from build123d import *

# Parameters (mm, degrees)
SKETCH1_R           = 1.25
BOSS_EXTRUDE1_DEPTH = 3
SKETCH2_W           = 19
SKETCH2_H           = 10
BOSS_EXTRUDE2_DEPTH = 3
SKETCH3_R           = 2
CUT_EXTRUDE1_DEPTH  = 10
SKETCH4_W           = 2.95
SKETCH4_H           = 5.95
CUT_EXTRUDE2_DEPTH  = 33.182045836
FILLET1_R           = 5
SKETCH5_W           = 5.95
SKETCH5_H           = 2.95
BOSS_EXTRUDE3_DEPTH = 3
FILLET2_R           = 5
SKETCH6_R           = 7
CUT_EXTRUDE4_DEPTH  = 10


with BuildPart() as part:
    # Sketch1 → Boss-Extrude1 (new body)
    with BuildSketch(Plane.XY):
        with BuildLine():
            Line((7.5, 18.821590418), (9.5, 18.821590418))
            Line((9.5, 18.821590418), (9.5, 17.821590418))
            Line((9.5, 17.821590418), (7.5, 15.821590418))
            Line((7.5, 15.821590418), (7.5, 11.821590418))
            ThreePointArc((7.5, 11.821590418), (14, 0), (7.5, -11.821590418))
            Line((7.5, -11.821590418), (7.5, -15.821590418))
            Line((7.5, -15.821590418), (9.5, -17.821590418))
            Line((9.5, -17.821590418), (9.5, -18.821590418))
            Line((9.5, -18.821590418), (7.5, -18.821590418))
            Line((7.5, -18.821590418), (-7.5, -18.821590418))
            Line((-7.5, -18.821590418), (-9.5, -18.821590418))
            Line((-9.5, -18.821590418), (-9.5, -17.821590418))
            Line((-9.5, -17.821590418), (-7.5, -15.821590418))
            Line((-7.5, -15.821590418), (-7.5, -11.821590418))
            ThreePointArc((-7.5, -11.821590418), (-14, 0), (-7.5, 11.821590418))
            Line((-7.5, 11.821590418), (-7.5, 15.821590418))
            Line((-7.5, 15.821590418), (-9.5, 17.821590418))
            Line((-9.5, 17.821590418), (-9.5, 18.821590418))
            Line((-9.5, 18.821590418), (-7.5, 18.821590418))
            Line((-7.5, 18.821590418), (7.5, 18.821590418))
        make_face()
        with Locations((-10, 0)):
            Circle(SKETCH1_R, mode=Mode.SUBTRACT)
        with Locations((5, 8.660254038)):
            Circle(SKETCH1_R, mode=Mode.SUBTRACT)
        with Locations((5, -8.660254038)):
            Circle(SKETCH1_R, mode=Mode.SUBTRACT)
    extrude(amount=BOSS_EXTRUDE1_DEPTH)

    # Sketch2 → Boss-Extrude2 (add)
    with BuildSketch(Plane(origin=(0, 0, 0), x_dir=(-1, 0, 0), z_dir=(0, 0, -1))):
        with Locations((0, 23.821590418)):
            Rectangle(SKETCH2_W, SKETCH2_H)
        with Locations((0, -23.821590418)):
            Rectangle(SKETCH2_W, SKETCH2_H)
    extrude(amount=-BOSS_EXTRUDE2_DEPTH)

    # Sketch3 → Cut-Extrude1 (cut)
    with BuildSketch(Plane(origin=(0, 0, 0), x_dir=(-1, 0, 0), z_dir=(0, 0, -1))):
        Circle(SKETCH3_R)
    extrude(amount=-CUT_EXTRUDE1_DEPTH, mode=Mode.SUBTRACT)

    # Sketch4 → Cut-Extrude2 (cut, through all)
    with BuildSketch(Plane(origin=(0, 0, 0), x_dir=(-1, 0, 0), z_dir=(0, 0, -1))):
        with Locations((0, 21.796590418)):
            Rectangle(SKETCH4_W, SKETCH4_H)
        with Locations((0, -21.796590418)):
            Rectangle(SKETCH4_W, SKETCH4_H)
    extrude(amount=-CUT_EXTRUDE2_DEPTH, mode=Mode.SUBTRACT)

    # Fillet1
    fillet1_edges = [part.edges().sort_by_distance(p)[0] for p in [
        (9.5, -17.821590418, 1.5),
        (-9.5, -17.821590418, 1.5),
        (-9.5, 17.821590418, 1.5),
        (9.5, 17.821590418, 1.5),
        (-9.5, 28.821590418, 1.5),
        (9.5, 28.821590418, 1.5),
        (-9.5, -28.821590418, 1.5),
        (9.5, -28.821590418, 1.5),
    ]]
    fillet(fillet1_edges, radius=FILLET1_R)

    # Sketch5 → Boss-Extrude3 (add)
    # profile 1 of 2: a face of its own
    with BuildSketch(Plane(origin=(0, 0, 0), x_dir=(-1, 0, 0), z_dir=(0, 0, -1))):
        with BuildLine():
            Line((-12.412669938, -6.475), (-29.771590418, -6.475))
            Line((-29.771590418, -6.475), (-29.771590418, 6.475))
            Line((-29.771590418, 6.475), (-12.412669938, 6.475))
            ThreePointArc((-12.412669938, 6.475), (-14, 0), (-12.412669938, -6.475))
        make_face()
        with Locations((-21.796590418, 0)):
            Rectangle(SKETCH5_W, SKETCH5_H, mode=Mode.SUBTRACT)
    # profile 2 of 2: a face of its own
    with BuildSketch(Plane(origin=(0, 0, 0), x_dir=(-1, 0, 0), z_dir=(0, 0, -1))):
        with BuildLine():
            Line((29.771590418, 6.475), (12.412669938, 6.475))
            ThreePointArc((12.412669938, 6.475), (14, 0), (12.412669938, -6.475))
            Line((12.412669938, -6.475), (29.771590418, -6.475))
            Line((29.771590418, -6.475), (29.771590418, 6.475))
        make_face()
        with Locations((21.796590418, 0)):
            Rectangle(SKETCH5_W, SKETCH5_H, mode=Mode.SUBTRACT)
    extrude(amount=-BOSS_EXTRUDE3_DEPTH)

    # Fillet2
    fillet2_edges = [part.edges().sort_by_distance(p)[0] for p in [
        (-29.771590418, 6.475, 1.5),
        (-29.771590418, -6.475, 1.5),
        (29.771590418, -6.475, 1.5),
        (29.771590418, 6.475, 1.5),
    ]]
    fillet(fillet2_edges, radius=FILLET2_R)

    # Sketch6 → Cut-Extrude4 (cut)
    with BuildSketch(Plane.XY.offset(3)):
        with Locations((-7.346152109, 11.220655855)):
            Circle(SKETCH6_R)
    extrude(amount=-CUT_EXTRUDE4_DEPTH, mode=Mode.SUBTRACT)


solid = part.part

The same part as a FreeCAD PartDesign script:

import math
import FreeCAD as App
import Part
import Sketcher
from FreeCAD import Vector
Q = App.Units.Quantity


def edges_at(feature, points):
    """Names of the edges that pass closest to the given points."""
    edges = feature.Shape.Edges
    near = lambda p: min(range(len(edges)), key=lambda i: edges[i].distToShape(Part.Vertex(*p))[0])
    return sorted({f"Edge{near(p) + 1}" for p in points})

doc = App.newDocument("Part")
body = doc.addObject("PartDesign::Body", "Body")

sketch1 = body.newObject("Sketcher::SketchObject", "Sketch")
sketch1.AttachmentSupport = (doc.getObject("XY_Plane"), [""])
sketch1.MapMode = "FlatFace"
sketch1.addGeometry([
    Part.LineSegment(Vector(9.5, 17.82159, 0), Vector(9.5, 18.82159, 0)),
    Part.LineSegment(Vector(9.5, 18.82159, 0), Vector(-9.5, 18.82159, 0)),
    Part.LineSegment(Vector(-9.5, 18.82159, 0), Vector(-9.5, 17.82159, 0)),
    Part.LineSegment(Vector(-9.5, 17.82159, 0), Vector(-7.5, 15.82159, 0)),
    Part.LineSegment(Vector(-7.5, 15.82159, 0), Vector(-7.5, 11.82159, 0)),
    Part.ArcOfCircle(Part.Circle(Vector(0, 0, 0), Vector(0, 0, 1), 14), math.radians(122.392365), math.radians(237.607635)),
    Part.LineSegment(Vector(-7.5, -11.82159, 0), Vector(-7.5, -15.82159, 0)),
    Part.LineSegment(Vector(-7.5, -15.82159, 0), Vector(-9.5, -17.82159, 0)),
    Part.LineSegment(Vector(-9.5, -17.82159, 0), Vector(-9.5, -18.82159, 0)),
    Part.LineSegment(Vector(-9.5, -18.82159, 0), Vector(9.5, -18.82159, 0)),
    Part.LineSegment(Vector(9.5, -18.82159, 0), Vector(9.5, -17.82159, 0)),
    Part.LineSegment(Vector(9.5, -17.82159, 0), Vector(7.5, -15.82159, 0)),
    Part.LineSegment(Vector(7.5, -15.82159, 0), Vector(7.5, -11.82159, 0)),
    Part.ArcOfCircle(Part.Circle(Vector(0, 0, 0), Vector(0, 0, 1), 14), math.radians(-57.607635), math.radians(57.607635)),
    Part.LineSegment(Vector(7.5, 11.82159, 0), Vector(7.5, 15.82159, 0)),
    Part.LineSegment(Vector(7.5, 15.82159, 0), Vector(9.5, 17.82159, 0)),
    Part.Circle(Vector(5, -8.660254, 0), Vector(0, 0, 1), 1.25),
    Part.Circle(Vector(5, 8.660254, 0), Vector(0, 0, 1), 1.25),
    Part.Circle(Vector(-10, 0, 0), Vector(0, 0, 1), 1.25),
], False)
sketch1.addConstraint([
    Sketcher.Constraint("Coincident", 0, 2, 1, 1),
    Sketcher.Constraint("Coincident", 1, 2, 2, 1),
    Sketcher.Constraint("Coincident", 2, 2, 3, 1),
    Sketcher.Constraint("Coincident", 3, 2, 4, 1),
    Sketcher.Constraint("Coincident", 4, 2, 5, 1),
    Sketcher.Constraint("Coincident", 5, 2, 6, 1),
    Sketcher.Constraint("Coincident", 6, 2, 7, 1),
    Sketcher.Constraint("Coincident", 7, 2, 8, 1),
    Sketcher.Constraint("Coincident", 8, 2, 9, 1),
    Sketcher.Constraint("Coincident", 9, 2, 10, 1),
    Sketcher.Constraint("Coincident", 10, 2, 11, 1),
    Sketcher.Constraint("Coincident", 11, 2, 12, 1),
    Sketcher.Constraint("Coincident", 12, 2, 13, 1),
    Sketcher.Constraint("Coincident", 13, 2, 14, 1),
    Sketcher.Constraint("Coincident", 14, 2, 15, 1),
    Sketcher.Constraint("Coincident", 15, 2, 0, 1),
    Sketcher.Constraint("Vertical", 0),
    Sketcher.Constraint("Horizontal", 1),
    Sketcher.Constraint("Vertical", 2),
    Sketcher.Constraint("Vertical", 4),
    Sketcher.Constraint("Vertical", 6),
    Sketcher.Constraint("Vertical", 8),
    Sketcher.Constraint("Horizontal", 9),
    Sketcher.Constraint("Vertical", 10),
    Sketcher.Constraint("Vertical", 12),
    Sketcher.Constraint("Vertical", 14),
    Sketcher.Constraint("Coincident", 5, 3, -1, 1),
    Sketcher.Constraint("Coincident", 13, 3, -1, 1),
    Sketcher.Constraint("Equal", 5, 13),
    Sketcher.Constraint("Equal", 16, 17),
    Sketcher.Constraint("Equal", 17, 18),
    Sketcher.Constraint("Symmetric", 0, 2, 8, 2, -1, 1),
    Sketcher.Constraint("Symmetric", 2, 2, 10, 2, -1, 1),
    Sketcher.Constraint("Symmetric", 3, 2, 11, 2, -1, 1),
    Sketcher.Constraint("Symmetric", 6, 2, 14, 2, -1, 1),
    Sketcher.Constraint("Symmetric", 7, 2, 10, 2, -2),
    Sketcher.Constraint("Symmetric", 6, 2, 11, 2, -2),
    Sketcher.Constraint("Symmetric", 16, 3, 17, 3, -1),
    Sketcher.Constraint("PointOnObject", 18, 3, -1),
    Sketcher.Constraint("Perpendicular", 3, 7),
    Sketcher.Constraint("Perpendicular", 11, 15),
    Sketcher.Constraint("Radius", 5, Q("14 mm")),
    Sketcher.Constraint("Diameter", 16, Q("2.5 mm")),
    Sketcher.Constraint("DistanceX", 1, 2, 1, 1, Q("19 mm")),
    Sketcher.Constraint("DistanceY", 0, 1, 0, 2, Q("1 mm")),
    Sketcher.Constraint("DistanceY", 4, 2, 4, 1, Q("4 mm")),
    Sketcher.Constraint("DistanceX", -1, 1, 16, 3, Q("5 mm")),
    Sketcher.Constraint("DistanceX", 18, 3, -1, 1, Q("10 mm")),
    Sketcher.Constraint("DistanceX", 2, 2, 3, 2, Q("2 mm")),
    Sketcher.Constraint("DistanceY", 16, 3, 17, 3, Q("17.320508 mm")),
])
pad1 = body.newObject("PartDesign::Pad", "Pad")
pad1.Profile = sketch1
pad1.Length = 3

sketch2 = body.newObject("Sketcher::SketchObject", "Sketch001")
sketch2.AttachmentSupport = (doc.getObject("XY_Plane"), [""])
sketch2.MapMode = "FlatFace"
sketch2.addGeometry([
    Part.LineSegment(Vector(9.5, 28.82159, 0), Vector(9.5, 18.82159, 0)),
    Part.LineSegment(Vector(9.5, 18.82159, 0), Vector(-9.5, 18.82159, 0)),
    Part.LineSegment(Vector(-9.5, 18.82159, 0), Vector(-9.5, 28.82159, 0)),
    Part.LineSegment(Vector(-9.5, 28.82159, 0), Vector(9.5, 28.82159, 0)),
    Part.LineSegment(Vector(9.5, -18.82159, 0), Vector(9.5, -28.82159, 0)),
    Part.LineSegment(Vector(9.5, -28.82159, 0), Vector(-9.5, -28.82159, 0)),
    Part.LineSegment(Vector(-9.5, -28.82159, 0), Vector(-9.5, -18.82159, 0)),
    Part.LineSegment(Vector(-9.5, -18.82159, 0), Vector(9.5, -18.82159, 0)),
], False)
sketch2.addConstraint([
    Sketcher.Constraint("Coincident", 0, 2, 1, 1),
    Sketcher.Constraint("Coincident", 1, 2, 2, 1),
    Sketcher.Constraint("Coincident", 2, 2, 3, 1),
    Sketcher.Constraint("Coincident", 3, 2, 0, 1),
    Sketcher.Constraint("Coincident", 4, 2, 5, 1),
    Sketcher.Constraint("Coincident", 5, 2, 6, 1),
    Sketcher.Constraint("Coincident", 6, 2, 7, 1),
    Sketcher.Constraint("Coincident", 7, 2, 4, 1),
    Sketcher.Constraint("Vertical", 0),
    Sketcher.Constraint("Horizontal", 1),
    Sketcher.Constraint("Vertical", 2),
    Sketcher.Constraint("Horizontal", 3),
    Sketcher.Constraint("Vertical", 4),
    Sketcher.Constraint("Horizontal", 5),
    Sketcher.Constraint("Vertical", 6),
    Sketcher.Constraint("Horizontal", 7),
    Sketcher.Constraint("Symmetric", 2, 2, 4, 2, -1, 1),
    Sketcher.Constraint("Symmetric", 0, 2, 6, 2, -1, 1),
    Sketcher.Constraint("Vertical", 3, 2, 4, 2),
    Sketcher.Constraint("DistanceX", 1, 2, 1, 1, Q("19 mm")),
    Sketcher.Constraint("DistanceY", 0, 2, 0, 1, Q("10 mm")),
    Sketcher.Constraint("DistanceY", -1, 1, 0, 2, Q("18.82159 mm")),
])
pad2 = body.newObject("PartDesign::Pad", "Pad001")
pad2.Profile = sketch2
pad2.Length = 3

sketch3 = body.newObject("Sketcher::SketchObject", "Sketch002")
sketch3.AttachmentSupport = (doc.getObject("XY_Plane"), [""])
sketch3.MapMode = "FlatFace"
sketch3.addGeometry(Part.Circle(Vector(0, 0, 0), Vector(0, 0, 1), 2), False)
sketch3.addConstraint([
    Sketcher.Constraint("Coincident", 0, 3, -1, 1),
    Sketcher.Constraint("Diameter", 0, Q("4 mm")),
])
pocket1 = body.newObject("PartDesign::Pocket", "Pocket")
pocket1.Profile = sketch3
pocket1.Length = 10
pocket1.Reversed = True

sketch4 = body.newObject("Sketcher::SketchObject", "Sketch003")
sketch4.AttachmentSupport = (doc.getObject("XY_Plane"), [""])
sketch4.MapMode = "FlatFace"
sketch4.addGeometry([
    Part.LineSegment(Vector(1.475, 24.77159, 0), Vector(1.475, 18.82159, 0)),
    Part.LineSegment(Vector(1.475, 18.82159, 0), Vector(-1.475, 18.82159, 0)),
    Part.LineSegment(Vector(-1.475, 18.82159, 0), Vector(-1.475, 24.77159, 0)),
    Part.LineSegment(Vector(-1.475, 24.77159, 0), Vector(1.475, 24.77159, 0)),
    Part.LineSegment(Vector(1.475, -18.82159, 0), Vector(1.475, -24.77159, 0)),
    Part.LineSegment(Vector(1.475, -24.77159, 0), Vector(-1.475, -24.77159, 0)),
    Part.LineSegment(Vector(-1.475, -24.77159, 0), Vector(-1.475, -18.82159, 0)),
    Part.LineSegment(Vector(-1.475, -18.82159, 0), Vector(1.475, -18.82159, 0)),
], False)
sketch4.addConstraint([
    Sketcher.Constraint("Coincident", 0, 2, 1, 1),
    Sketcher.Constraint("Coincident", 1, 2, 2, 1),
    Sketcher.Constraint("Coincident", 2, 2, 3, 1),
    Sketcher.Constraint("Coincident", 3, 2, 0, 1),
    Sketcher.Constraint("Coincident", 4, 2, 5, 1),
    Sketcher.Constraint("Coincident", 5, 2, 6, 1),
    Sketcher.Constraint("Coincident", 6, 2, 7, 1),
    Sketcher.Constraint("Coincident", 7, 2, 4, 1),
    Sketcher.Constraint("Vertical", 0),
    Sketcher.Constraint("Horizontal", 1),
    Sketcher.Constraint("Vertical", 2),
    Sketcher.Constraint("Horizontal", 3),
    Sketcher.Constraint("Vertical", 4),
    Sketcher.Constraint("Horizontal", 5),
    Sketcher.Constraint("Vertical", 6),
    Sketcher.Constraint("Horizontal", 7),
    Sketcher.Constraint("Symmetric", 2, 2, 4, 2, -1, 1),
    Sketcher.Constraint("Symmetric", 0, 2, 6, 2, -1, 1),
    Sketcher.Constraint("Vertical", 3, 2, 4, 2),
    Sketcher.Constraint("DistanceX", 1, 2, 1, 1, Q("2.95 mm")),
    Sketcher.Constraint("DistanceY", 0, 2, 0, 1, Q("5.95 mm")),
    Sketcher.Constraint("DistanceY", -1, 1, 0, 2, Q("18.82159 mm")),
])
pocket2 = body.newObject("PartDesign::Pocket", "Pocket001")
pocket2.Profile = sketch4
pocket2.Type = "ThroughAll"
pocket2.Reversed = True
doc.recompute()

fillet = body.newObject("PartDesign::Fillet", "Fillet")
fillet.Base = (pocket2, edges_at(pocket2, [
    (9.5, -17.822, 1.5),
    (-9.5, -17.822, 1.5),
    (-9.5, 17.822, 1.5),
    (9.5, 17.822, 1.5),
    (-9.5, 28.822, 1.5),
    (9.5, 28.822, 1.5),
    (-9.5, -28.822, 1.5),
    (9.5, -28.822, 1.5),
]))
fillet.Radius = 5

sketch5 = body.newObject("Sketcher::SketchObject", "Sketch004")
sketch5.AttachmentSupport = (doc.getObject("XY_Plane"), [""])
sketch5.MapMode = "FlatFace"
sketch5.addGeometry([
    Part.LineSegment(Vector(29.77159, -6.475, 0), Vector(12.41267, -6.475, 0)),
    Part.ArcOfCircle(Part.Circle(Vector(0, 0, 0), Vector(0, 0, 1), 14), math.radians(-27.548546), math.radians(27.548546)),
    Part.LineSegment(Vector(12.41267, 6.475, 0), Vector(29.77159, 6.475, 0)),
    Part.LineSegment(Vector(29.77159, 6.475, 0), Vector(29.77159, -6.475, 0)),
    Part.LineSegment(Vector(24.77159, -1.475, 0), Vector(24.77159, 1.475, 0)),
    Part.LineSegment(Vector(24.77159, 1.475, 0), Vector(18.82159, 1.475, 0)),
    Part.LineSegment(Vector(18.82159, 1.475, 0), Vector(18.82159, -1.475, 0)),
    Part.LineSegment(Vector(18.82159, -1.475, 0), Vector(24.77159, -1.475, 0)),
    Part.LineSegment(Vector(-29.77159, 6.475, 0), Vector(-12.41267, 6.475, 0)),
    Part.ArcOfCircle(Part.Circle(Vector(0, 0, 0), Vector(0, 0, 1), 14), math.radians(152.451454), math.radians(207.548546)),
    Part.LineSegment(Vector(-12.41267, -6.475, 0), Vector(-29.77159, -6.475, 0)),
    Part.LineSegment(Vector(-29.77159, -6.475, 0), Vector(-29.77159, 6.475, 0)),
    Part.LineSegment(Vector(-24.77159, -1.475, 0), Vector(-18.82159, -1.475, 0)),
    Part.LineSegment(Vector(-18.82159, -1.475, 0), Vector(-18.82159, 1.475, 0)),
    Part.LineSegment(Vector(-18.82159, 1.475, 0), Vector(-24.77159, 1.475, 0)),
    Part.LineSegment(Vector(-24.77159, 1.475, 0), Vector(-24.77159, -1.475, 0)),
], False)
sketch5.addConstraint([
    Sketcher.Constraint("Coincident", 0, 2, 1, 1),
    Sketcher.Constraint("Coincident", 1, 2, 2, 1),
    Sketcher.Constraint("Coincident", 2, 2, 3, 1),
    Sketcher.Constraint("Coincident", 3, 2, 0, 1),
    Sketcher.Constraint("Coincident", 4, 2, 5, 1),
    Sketcher.Constraint("Coincident", 5, 2, 6, 1),
    Sketcher.Constraint("Coincident", 6, 2, 7, 1),
    Sketcher.Constraint("Coincident", 7, 2, 4, 1),
    Sketcher.Constraint("Coincident", 8, 2, 9, 1),
    Sketcher.Constraint("Coincident", 9, 2, 10, 1),
    Sketcher.Constraint("Coincident", 10, 2, 11, 1),
    Sketcher.Constraint("Coincident", 11, 2, 8, 1),
    Sketcher.Constraint("Coincident", 12, 2, 13, 1),
    Sketcher.Constraint("Coincident", 13, 2, 14, 1),
    Sketcher.Constraint("Coincident", 14, 2, 15, 1),
    Sketcher.Constraint("Coincident", 15, 2, 12, 1),
    Sketcher.Constraint("Horizontal", 0),
    Sketcher.Constraint("Horizontal", 2),
    Sketcher.Constraint("Vertical", 3),
    Sketcher.Constraint("Vertical", 4),
    Sketcher.Constraint("Horizontal", 5),
    Sketcher.Constraint("Vertical", 6),
    Sketcher.Constraint("Horizontal", 7),
    Sketcher.Constraint("Horizontal", 8),
    Sketcher.Constraint("Horizontal", 10),
    Sketcher.Constraint("Vertical", 11),
    Sketcher.Constraint("Horizontal", 12),
    Sketcher.Constraint("Vertical", 13),
    Sketcher.Constraint("Horizontal", 14),
    Sketcher.Constraint("Vertical", 15),
    Sketcher.Constraint("Coincident", 1, 3, -1, 1),
    Sketcher.Constraint("Coincident", 9, 3, -1, 1),
    Sketcher.Constraint("Equal", 1, 9),
    Sketcher.Constraint("Symmetric", 2, 2, 10, 2, -1, 1),
    Sketcher.Constraint("Symmetric", 5, 2, 12, 2, -1, 1),
    Sketcher.Constraint("Symmetric", 7, 2, 14, 2, -1, 1),
    Sketcher.Constraint("Horizontal", 2, 2, 8, 2),
    Sketcher.Constraint("Horizontal", 3, 2, 9, 2),
    Sketcher.Constraint("Horizontal", 7, 2, 12, 2),
    Sketcher.Constraint("Radius", 1, Q("14 mm")),
    Sketcher.Constraint("DistanceX", 4, 2, 2, 2, Q("5 mm")),
    Sketcher.Constraint("DistanceY", 4, 2, 2, 2, Q("5 mm")),
    Sketcher.Constraint("DistanceX", 5, 2, 5, 1, Q("5.95 mm")),
    Sketcher.Constraint("DistanceY", 3, 2, 3, 1, Q("12.95 mm")),
    Sketcher.Constraint("DistanceX", 0, 2, 0, 1, Q("17.35892 mm")),
])
pad3 = body.newObject("PartDesign::Pad", "Pad002")
pad3.Profile = sketch5
pad3.Length = 3
doc.recompute()

fillet2 = body.newObject("PartDesign::Fillet", "Fillet001")
fillet2.Base = (pad3, edges_at(pad3, [
    (-29.772, 6.475, 1.5),
    (-29.772, -6.475, 1.5),
    (29.772, -6.475, 1.5),
    (29.772, 6.475, 1.5),
]))
fillet2.Radius = 5

sketch6 = body.newObject("Sketcher::SketchObject", "Sketch005")
sketch6.AttachmentSupport = (doc.getObject("XY_Plane"), [""])
sketch6.MapMode = "FlatFace"
sketch6.AttachmentOffset = App.Placement(Vector(0, 0, 3), App.Rotation())
sketch6.addGeometry(Part.Circle(Vector(-7.346152, 11.220656, 0), Vector(0, 0, 1), 7), False)
sketch6.addConstraint([
    Sketcher.Constraint("Diameter", 0, Q("14 mm")),
    Sketcher.Constraint("DistanceX", 0, 3, -1, 1, Q("7.346152 mm")),
    Sketcher.Constraint("DistanceY", -1, 1, 0, 3, Q("11.220656 mm")),
])
pocket3 = body.newObject("PartDesign::Pocket", "Pocket002")
pocket3.Profile = sketch6
pocket3.Length = 10

doc.recompute()
